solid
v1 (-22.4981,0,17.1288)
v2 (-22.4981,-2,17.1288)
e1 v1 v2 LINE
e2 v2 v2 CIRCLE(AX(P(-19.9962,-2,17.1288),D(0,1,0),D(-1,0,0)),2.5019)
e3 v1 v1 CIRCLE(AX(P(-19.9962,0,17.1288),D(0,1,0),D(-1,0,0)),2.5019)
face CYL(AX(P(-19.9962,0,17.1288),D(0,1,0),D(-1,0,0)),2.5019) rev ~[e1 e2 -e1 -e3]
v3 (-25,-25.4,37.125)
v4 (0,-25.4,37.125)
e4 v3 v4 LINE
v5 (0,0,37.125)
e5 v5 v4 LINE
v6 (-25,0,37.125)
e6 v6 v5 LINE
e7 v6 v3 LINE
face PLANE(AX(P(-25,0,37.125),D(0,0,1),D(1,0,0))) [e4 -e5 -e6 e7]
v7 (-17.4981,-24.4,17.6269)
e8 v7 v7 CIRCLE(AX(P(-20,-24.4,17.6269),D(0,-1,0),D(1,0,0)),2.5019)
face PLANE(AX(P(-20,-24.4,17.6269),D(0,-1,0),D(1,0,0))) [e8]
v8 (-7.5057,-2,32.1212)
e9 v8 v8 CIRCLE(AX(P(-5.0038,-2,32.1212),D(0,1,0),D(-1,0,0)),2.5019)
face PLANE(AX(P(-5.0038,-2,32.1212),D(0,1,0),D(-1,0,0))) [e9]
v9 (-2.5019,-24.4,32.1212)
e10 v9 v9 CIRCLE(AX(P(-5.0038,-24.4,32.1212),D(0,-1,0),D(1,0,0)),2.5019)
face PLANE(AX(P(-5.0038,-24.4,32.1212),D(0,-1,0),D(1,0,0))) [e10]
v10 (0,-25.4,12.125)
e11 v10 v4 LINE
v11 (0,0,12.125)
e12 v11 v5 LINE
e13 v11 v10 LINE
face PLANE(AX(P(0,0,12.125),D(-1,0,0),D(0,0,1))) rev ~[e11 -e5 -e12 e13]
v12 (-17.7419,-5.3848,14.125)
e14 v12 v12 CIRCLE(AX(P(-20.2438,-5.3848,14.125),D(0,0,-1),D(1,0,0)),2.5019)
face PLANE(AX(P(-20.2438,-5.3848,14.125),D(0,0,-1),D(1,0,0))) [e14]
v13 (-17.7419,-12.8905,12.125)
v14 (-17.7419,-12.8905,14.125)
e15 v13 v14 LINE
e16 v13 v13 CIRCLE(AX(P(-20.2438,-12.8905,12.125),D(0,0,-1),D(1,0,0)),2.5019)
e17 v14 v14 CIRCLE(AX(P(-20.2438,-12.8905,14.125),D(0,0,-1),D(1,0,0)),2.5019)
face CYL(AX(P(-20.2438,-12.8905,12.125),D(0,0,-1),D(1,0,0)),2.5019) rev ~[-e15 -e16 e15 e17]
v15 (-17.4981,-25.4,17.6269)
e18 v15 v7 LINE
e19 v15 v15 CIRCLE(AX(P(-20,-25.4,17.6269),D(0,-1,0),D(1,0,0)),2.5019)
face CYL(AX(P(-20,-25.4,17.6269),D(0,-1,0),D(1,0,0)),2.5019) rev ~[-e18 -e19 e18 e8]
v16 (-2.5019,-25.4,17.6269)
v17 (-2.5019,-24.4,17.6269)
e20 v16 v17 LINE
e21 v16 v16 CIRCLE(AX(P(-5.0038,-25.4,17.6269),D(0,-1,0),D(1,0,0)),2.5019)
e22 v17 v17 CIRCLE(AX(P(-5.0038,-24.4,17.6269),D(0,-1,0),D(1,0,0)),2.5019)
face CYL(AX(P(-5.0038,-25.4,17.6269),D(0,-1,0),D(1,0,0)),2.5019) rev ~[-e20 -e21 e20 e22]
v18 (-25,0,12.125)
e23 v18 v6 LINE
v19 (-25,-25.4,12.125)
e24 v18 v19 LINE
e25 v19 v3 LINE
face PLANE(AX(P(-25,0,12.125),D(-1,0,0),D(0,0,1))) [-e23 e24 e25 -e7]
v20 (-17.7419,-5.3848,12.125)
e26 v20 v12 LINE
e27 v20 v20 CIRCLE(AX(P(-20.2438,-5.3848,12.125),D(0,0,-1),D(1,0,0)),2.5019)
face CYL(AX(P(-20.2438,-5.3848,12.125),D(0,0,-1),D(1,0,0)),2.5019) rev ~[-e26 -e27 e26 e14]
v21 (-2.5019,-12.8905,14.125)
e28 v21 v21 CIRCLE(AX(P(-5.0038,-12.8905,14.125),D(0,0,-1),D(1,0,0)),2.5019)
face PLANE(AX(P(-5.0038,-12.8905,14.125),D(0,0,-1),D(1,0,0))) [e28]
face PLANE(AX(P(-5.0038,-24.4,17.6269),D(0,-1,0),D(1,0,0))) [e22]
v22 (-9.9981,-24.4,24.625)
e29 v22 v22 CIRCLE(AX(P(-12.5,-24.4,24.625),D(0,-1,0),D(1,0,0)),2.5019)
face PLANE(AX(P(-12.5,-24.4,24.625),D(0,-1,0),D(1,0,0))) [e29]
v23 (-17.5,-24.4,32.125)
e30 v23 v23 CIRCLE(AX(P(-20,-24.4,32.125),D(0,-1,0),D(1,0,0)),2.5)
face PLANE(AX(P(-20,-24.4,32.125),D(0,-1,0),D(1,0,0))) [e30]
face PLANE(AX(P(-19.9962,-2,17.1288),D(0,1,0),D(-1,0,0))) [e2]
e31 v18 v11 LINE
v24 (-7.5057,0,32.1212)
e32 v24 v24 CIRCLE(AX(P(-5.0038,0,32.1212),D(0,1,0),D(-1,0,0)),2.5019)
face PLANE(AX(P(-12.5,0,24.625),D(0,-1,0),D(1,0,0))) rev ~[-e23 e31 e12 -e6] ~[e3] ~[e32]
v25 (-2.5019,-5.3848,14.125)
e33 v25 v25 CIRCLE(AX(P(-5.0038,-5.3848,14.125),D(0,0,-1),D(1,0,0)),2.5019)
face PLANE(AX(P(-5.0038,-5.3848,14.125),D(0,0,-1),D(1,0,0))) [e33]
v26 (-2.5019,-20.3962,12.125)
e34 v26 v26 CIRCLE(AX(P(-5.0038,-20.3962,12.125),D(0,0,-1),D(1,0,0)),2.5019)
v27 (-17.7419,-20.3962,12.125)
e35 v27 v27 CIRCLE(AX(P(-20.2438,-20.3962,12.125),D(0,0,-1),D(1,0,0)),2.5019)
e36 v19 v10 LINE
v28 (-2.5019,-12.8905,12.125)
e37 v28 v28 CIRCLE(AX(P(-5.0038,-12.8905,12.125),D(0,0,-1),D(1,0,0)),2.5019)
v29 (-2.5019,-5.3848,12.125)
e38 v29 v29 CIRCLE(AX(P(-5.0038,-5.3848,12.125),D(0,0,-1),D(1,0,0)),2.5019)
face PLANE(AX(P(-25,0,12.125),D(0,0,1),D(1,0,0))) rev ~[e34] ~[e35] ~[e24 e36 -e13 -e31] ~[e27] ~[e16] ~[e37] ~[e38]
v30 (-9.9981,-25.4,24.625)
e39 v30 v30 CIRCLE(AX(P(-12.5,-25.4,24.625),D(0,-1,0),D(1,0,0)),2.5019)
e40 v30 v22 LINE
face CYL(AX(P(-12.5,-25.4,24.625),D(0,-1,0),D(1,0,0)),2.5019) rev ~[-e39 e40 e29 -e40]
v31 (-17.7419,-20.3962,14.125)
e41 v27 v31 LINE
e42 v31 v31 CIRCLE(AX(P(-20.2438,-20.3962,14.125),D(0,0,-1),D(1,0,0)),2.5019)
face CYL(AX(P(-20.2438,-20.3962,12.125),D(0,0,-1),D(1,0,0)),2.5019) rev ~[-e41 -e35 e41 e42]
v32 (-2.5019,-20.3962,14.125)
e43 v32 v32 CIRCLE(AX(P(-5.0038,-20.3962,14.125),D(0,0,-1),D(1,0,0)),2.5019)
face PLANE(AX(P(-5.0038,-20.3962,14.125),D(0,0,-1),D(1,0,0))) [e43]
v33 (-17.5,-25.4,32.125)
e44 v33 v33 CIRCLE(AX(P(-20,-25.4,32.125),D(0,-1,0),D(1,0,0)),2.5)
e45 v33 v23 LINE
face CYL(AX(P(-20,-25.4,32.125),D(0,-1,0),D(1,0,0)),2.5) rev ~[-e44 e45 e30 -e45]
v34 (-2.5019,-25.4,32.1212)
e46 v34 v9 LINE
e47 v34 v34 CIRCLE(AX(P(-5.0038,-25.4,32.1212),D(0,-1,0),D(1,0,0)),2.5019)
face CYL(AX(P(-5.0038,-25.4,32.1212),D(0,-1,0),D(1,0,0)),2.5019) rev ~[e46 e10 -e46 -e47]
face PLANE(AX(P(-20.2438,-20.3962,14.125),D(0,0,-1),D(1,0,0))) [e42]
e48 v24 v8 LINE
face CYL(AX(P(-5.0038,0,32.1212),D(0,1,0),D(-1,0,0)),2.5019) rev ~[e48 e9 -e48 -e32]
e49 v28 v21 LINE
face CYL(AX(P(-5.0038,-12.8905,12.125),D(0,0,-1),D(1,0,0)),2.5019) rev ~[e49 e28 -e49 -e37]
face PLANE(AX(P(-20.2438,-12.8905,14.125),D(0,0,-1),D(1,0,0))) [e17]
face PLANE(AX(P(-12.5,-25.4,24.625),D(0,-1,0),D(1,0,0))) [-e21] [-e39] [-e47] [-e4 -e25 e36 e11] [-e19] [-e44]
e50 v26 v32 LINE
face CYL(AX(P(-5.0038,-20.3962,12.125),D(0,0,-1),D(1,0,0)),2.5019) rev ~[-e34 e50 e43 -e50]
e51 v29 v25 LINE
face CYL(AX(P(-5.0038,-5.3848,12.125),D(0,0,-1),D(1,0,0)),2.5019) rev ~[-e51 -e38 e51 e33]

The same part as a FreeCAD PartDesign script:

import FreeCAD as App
import Part
import Sketcher
Q = App.Units.Quantity

doc = App.newDocument("Part")
params = doc.addObject("Spreadsheet::Sheet", "Params")
for row, (alias, value) in enumerate([
    ("sketch1_width", "25 mm"),
    ("pad1_length", "25.4 mm"),
    ("sketch2_diameter", "5 mm"),
    ("pocket1_length", "1 mm"),
    ("pocket2_length", "2 mm"),
    ("pocket3_length", "2 mm"),
], start=1):
    params.set(f"A{row}", alias)
    params.set(f"B{row}", "=" + value)
    params.setAlias(f"B{row}", alias)

body = doc.addObject("PartDesign::Body", "Body")

sketch1 = doc.addObject("Sketcher::SketchObject", "Sketch")
body.addObject(sketch1)
sketch1.AttachmentSupport = (doc.XZ_Plane, [""])
sketch1.MapMode = "FlatFace"
sketch1.addGeometry([
    Part.LineSegment(App.Vector(-25, 37, 0), App.Vector(-25, 12, 0)),
    Part.LineSegment(App.Vector(-25, 12, 0), App.Vector(0, 12, 0)),
    Part.LineSegment(App.Vector(0, 12, 0), App.Vector(0, 37, 0)),
    Part.LineSegment(App.Vector(0, 37, 0), App.Vector(-25, 37, 0)),
], False)
sketch1.addConstraint([
    Sketcher.Constraint("Coincident", 0, 2, 1, 1),
    Sketcher.Constraint("Coincident", 1, 2, 2, 1),
    Sketcher.Constraint("Coincident", 2, 2, 3, 1),
    Sketcher.Constraint("Coincident", 3, 2, 0, 1),
    Sketcher.Constraint("Vertical", 0),
    Sketcher.Constraint("Horizontal", 1),
    Sketcher.Constraint("Vertical", 2),
    Sketcher.Constraint("Horizontal", 3),
    Sketcher.Constraint("PointOnObject", 1, 2, -2),
    Sketcher.Constraint("Equal", 3, 0),
    Sketcher.Constraint("DistanceX", 1, 1, 1, 2, Q("25 mm")),
    Sketcher.Constraint("DistanceY", -1, 1, 0, 2, Q("12.125 mm")),
])
sketch1.setExpression("Constraints[10]", "Params.sketch1_width")
pad1 = doc.addObject("PartDesign::Pad", "Pad")
body.addObject(pad1)
pad1.Profile = sketch1
pad1.setExpression("Length", "Params.pad1_length")

sketch2 = doc.addObject("Sketcher::SketchObject", "Sketch001")
body.addObject(sketch2)
sketch2.AttachmentSupport = (doc.XZ_Plane, [""])
sketch2.MapMode = "FlatFace"
sketch2.AttachmentOffset = App.Placement(App.Vector(0, 0, 25.4), App.Rotation())
sketch2.addGeometry([
    Part.Circle(App.Vector(-20, 32.1, 0), App.Vector(0, 0, 1), 2.5),
    Part.Circle(App.Vector(-12.5, 24.6, 0), App.Vector(0, 0, 1), 2.5),
    Part.Circle(App.Vector(-5, 32.1, 0), App.Vector(0, 0, 1), 2.5),
    Part.Circle(App.Vector(-5, 17.6, 0), App.Vector(0, 0, 1), 2.5),
    Part.Circle(App.Vector(-20, 17.6, 0), App.Vector(0, 0, 1), 2.5),
], False)
sketch2.addConstraint([
    Sketcher.Constraint("Equal", 1, 2),
    Sketcher.Constraint("Equal", 2, 3),
    Sketcher.Constraint("Equal", 3, 4),
    Sketcher.Constraint("Horizontal", 3, 3, 4, 3),
    Sketcher.Constraint("Vertical", 2, 3, 3, 3),
    Sketcher.Constraint("Vertical", 0, 3, 4, 3),
    Sketcher.Constraint("Diameter", 0, Q("5 mm")),
    Sketcher.Constraint("DistanceX", 0, 3, -1, 1, Q("20 mm")),
    Sketcher.Constraint("Diameter", 1, Q("5.0038 mm")),
    Sketcher.Constraint("DistanceX", 1, 3, -1, 1, Q("12.5 mm")),
    Sketcher.Constraint("DistanceY", 1, 3, 0, 3, Q("7.5 mm")),
    Sketcher.Constraint("DistanceY", -1, 1, 0, 3, Q("32.125 mm")),
    Sketcher.Constraint("DistanceX", 2, 3, -1, 1, Q("5.0038 mm")),
    Sketcher.Constraint("DistanceY", -1, 1, 2, 3, Q("32.1212 mm")),
    Sketcher.Constraint("DistanceY", -1, 1, 3, 3, Q("17.6269 mm")),
])
sketch2.setExpression("Constraints[6]", "Params.sketch2_diameter")
pocket1 = doc.addObject("PartDesign::Pocket", "Pocket")
body.addObject(pocket1)
pocket1.Profile = sketch2
pocket1.setExpression("Length", "Params.pocket1_length")

sketch3 = doc.addObject("Sketcher::SketchObject", "Sketch002")
body.addObject(sketch3)
sketch3.AttachmentSupport = (doc.XZ_Plane, [""])
sketch3.MapMode = "FlatFace"
sketch3.addGeometry([
    Part.Circle(App.Vector(-5, 32.1, 0), App.Vector(0, 0, 1), 2.5),
    Part.Circle(App.Vector(-20, 17.1, 0), App.Vector(0, 0, 1), 2.5),
], False)
sketch3.addConstraint([
    Sketcher.Constraint("Equal", 0, 1),
    Sketcher.Constraint("Diameter", 0, Q("5.0038 mm")),
    Sketcher.Constraint("DistanceX", 0, 3, -1, 1, Q("5.0038 mm")),
    Sketcher.Constraint("DistanceY", -1, 1, 0, 3, Q("32.1212 mm")),
    Sketcher.Constraint("DistanceX", 1, 3, -1, 1, Q("19.9962 mm")),
    Sketcher.Constraint("DistanceY", -1, 1, 1, 3, Q("17.1288 mm")),
])
pocket2 = doc.addObject("PartDesign::Pocket", "Pocket001")
body.addObject(pocket2)
pocket2.Profile = sketch3
pocket2.setExpression("Length", "Params.pocket2_length")
pocket2.Reversed = True

sketch4 = doc.addObject("Sketcher::SketchObject", "Sketch003")
body.addObject(sketch4)
sketch4.AttachmentSupport = (doc.XY_Plane, [""])
sketch4.MapMode = "FlatFace"
sketch4.AttachmentOffset = App.Placement(App.Vector(0, 0, 12.125), App.Rotation())
sketch4.addGeometry([
    Part.Circle(App.Vector(-5, -5.4, 0), App.Vector(0, 0, 1), 2.5),
    Part.Circle(App.Vector(-20.2, -12.9, 0), App.Vector(0, 0, 1), 2.5),
    Part.Circle(App.Vector(-5, -12.9, 0), App.Vector(0, 0, 1), 2.5),
    Part.Circle(App.Vector(-5, -20.4, 0), App.Vector(0, 0, 1), 2.5),
    Part.Circle(App.Vector(-20.2, -20.4, 0), App.Vector(0, 0, 1), 2.5),
    Part.Circle(App.Vector(-20.2, -5.4, 0), App.Vector(0, 0, 1), 2.5),
], False)
sketch4.addConstraint([
    Sketcher.Constraint("Equal", 0, 1),
    Sketcher.Constraint("Equal", 1, 2),
    Sketcher.Constraint("Equal", 2, 3),
    Sketcher.Constraint("Equal", 3, 4),
    Sketcher.Constraint("Equal", 4, 5),
    Sketcher.Constraint("Horizontal", 1, 3, 2, 3),
    Sketcher.Constraint("Horizontal", 3, 3, 4, 3),
    Sketcher.Constraint("Horizontal", 0, 3, 5, 3),
    Sketcher.Constraint("Vertical", 0, 3, 2, 3),
    Sketcher.Constraint("Vertical", 2, 3, 3, 3),
    Sketcher.Constraint("Vertical", 1, 3, 4, 3),
    Sketcher.Constraint("Vertical", 4, 3, 5, 3),
    Sketcher.Constraint("Diameter", 0, Q("5.0038 mm")),
    Sketcher.Constraint("DistanceX", 1, 3, 0, 3, Q("15.24 mm")),
    Sketcher.Constraint("DistanceX", 0, 3, -1, 1, Q("5.0038 mm")),
    Sketcher.Constraint("DistanceY", 0, 3, -1, 1, Q("5.3848 mm")),
    Sketcher.Constraint("DistanceY", 1, 3, -1, 1, Q("12.8905 mm")),
    Sketcher.Constraint("DistanceY", 3, 3, -1, 1, Q("20.3962 mm")),
])
pocket3 = doc.addObject("PartDesign::Pocket", "Pocket002")
body.addObject(pocket3)
pocket3.Profile = sketch4
pocket3.setExpression("Length", "Params.pocket3_length")
pocket3.Reversed = True

doc.recompute()
